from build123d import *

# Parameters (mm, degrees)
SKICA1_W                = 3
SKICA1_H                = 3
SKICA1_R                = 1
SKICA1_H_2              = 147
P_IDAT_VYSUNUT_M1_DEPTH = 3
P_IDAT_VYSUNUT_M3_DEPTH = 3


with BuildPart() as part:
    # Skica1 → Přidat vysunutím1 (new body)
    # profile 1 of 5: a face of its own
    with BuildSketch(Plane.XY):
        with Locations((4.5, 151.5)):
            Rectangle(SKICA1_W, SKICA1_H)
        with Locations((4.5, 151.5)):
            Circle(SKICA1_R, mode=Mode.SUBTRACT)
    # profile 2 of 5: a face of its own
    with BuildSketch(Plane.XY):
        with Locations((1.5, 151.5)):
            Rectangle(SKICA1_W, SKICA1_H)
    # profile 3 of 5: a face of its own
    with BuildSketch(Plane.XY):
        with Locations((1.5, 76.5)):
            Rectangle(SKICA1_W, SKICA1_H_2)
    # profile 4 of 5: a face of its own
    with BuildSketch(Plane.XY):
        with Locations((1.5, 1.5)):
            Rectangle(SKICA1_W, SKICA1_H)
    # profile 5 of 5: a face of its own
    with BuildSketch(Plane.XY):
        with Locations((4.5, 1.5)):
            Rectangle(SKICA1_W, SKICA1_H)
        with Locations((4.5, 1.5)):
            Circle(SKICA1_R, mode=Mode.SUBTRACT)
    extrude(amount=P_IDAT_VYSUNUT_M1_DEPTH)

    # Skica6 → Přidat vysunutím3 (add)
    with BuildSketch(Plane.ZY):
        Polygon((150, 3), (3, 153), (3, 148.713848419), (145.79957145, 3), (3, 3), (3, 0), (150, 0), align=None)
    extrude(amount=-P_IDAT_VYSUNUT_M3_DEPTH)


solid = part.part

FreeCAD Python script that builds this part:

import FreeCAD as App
import Part
import Sketcher

V = App.Vector


def add_polygon(sketch, points):
    """Adds a closed chain of lines whose ends are joined by coincident constraints."""
    first, n = sketch.GeometryCount, len(points)
    for a, b in zip(points, points[1:] + points[:1]):
        sketch.addGeometry(Part.LineSegment(App.Vector(*a, 0), App.Vector(*b, 0)), False)
    for i in range(n):
        sketch.addConstraint(Sketcher.Constraint("Coincident", first + i, 2, first + (i + 1) % n, 1))

doc = App.newDocument("Part")
body = doc.addObject("PartDesign::Body", "Body")

# Sketch on XY plane
sketch1 = doc.addObject("Sketcher::SketchObject", "Sketch")
body.addObject(sketch1)
sketch1.AttachmentSupport = (doc.XY_Plane, [""])
sketch1.MapMode = "FlatFace"
add_polygon(sketch1, [(3, 150), (6, 150), (6, 153), (0, 153), (0, 0), (6, 0), (6, 3), (3, 3)])  # lines 0-7
sketch1.addGeometry(Part.Circle(V(4.5, 151.5, 0), V(0, 0, 1), 1), False)  # 8
sketch1.addGeometry(Part.Circle(V(4.5, 1.5, 0), V(0, 0, 1), 1), False)  # 9
sketch1.addConstraint(Sketcher.Constraint("Horizontal", 0))
sketch1.addConstraint(Sketcher.Constraint("Vertical", 1))
sketch1.addConstraint(Sketcher.Constraint("Horizontal", 2))
sketch1.addConstraint(Sketcher.Constraint("Vertical", 3))
sketch1.addConstraint(Sketcher.Constraint("Horizontal", 4))
sketch1.addConstraint(Sketcher.Constraint("Vertical", 5))
sketch1.addConstraint(Sketcher.Constraint("Horizontal", 6))
sketch1.addConstraint(Sketcher.Constraint("Vertical", 7))
sketch1.addConstraint(Sketcher.Constraint("Coincident", 3, 2, -1, 1))
sketch1.addConstraint(Sketcher.Constraint("Equal", 8, 9))
sketch1.addConstraint(Sketcher.Constraint("Vertical", 8, 3, 9, 3))
sketch1.addConstraint(Sketcher.Constraint("Vertical", 1, 2, 4, 2))
sketch1.addConstraint(Sketcher.Constraint("Equal", 6, 1))
sketch1.addConstraint(Sketcher.Constraint("Equal", 1, 5))
sketch1.addConstraint(Sketcher.Constraint("Diameter", 8, 2.0))
sketch1.addConstraint(Sketcher.Constraint("DistanceX", 0, 1, 0, 2, 3.0))
sketch1.addConstraint(Sketcher.Constraint("DistanceX", 2, 2, 2, 1, 6.0))
sketch1.addConstraint(Sketcher.Constraint("DistanceY", 3, 2, 3, 1, 153.0))
sketch1.addConstraint(Sketcher.Constraint("DistanceY", 9, 3, 8, 3, 150.0))
sketch1.addConstraint(Sketcher.Constraint("DistanceX", -1, 1, 8, 3, 4.5))
sketch1.addConstraint(Sketcher.Constraint("DistanceY", -1, 1, 8, 3, 151.5))
pad1 = doc.addObject("PartDesign::Pad", "Pad")
body.addObject(pad1)
pad1.Profile = sketch1
pad1.Length = 3

# Sketch on YZ plane
sketch2 = doc.addObject("Sketcher::SketchObject", "Sketch001")
body.addObject(sketch2)
sketch2.AttachmentSupport = (doc.YZ_Plane, [""])
sketch2.MapMode = "FlatFace"
add_polygon(sketch2, [(3, 150), (153, 3), (148.713848, 3), (3, 145.799571), (3, 3), (0, 3), (0, 150)])  # lines 0-6
sketch2.addConstraint(Sketcher.Constraint("Horizontal", 1))
sketch2.addConstraint(Sketcher.Constraint("Vertical", 3))
sketch2.addConstraint(Sketcher.Constraint("Horizontal", 4))
sketch2.addConstraint(Sketcher.Constraint("Vertical", 5))
sketch2.addConstraint(Sketcher.Constraint("Horizontal", 6))
sketch2.addConstraint(Sketcher.Constraint("PointOnObject", 4, 2, -2))
sketch2.addConstraint(Sketcher.Constraint("Parallel", 0, 2))
sketch2.addConstraint(Sketcher.Constraint("Horizontal", 1, 2, 3, 2))
sketch2.addConstraint(Sketcher.Constraint("Vertical", 3, 2, 6, 2))
sketch2.addConstraint(Sketcher.Constraint("DistanceX", 4, 2, 4, 1, 3.0))
sketch2.addConstraint(Sketcher.Constraint("DistanceY", 5, 1, 5, 2, 147.0))
sketch2.addConstraint(Sketcher.Constraint("DistanceX", -1, 1, 0, 2, 153.0))
sketch2.addConstraint(Sketcher.Constraint("DistanceY", -1, 1, 0, 2, 3.0))
sketch2.addConstraint(Sketcher.Constraint("DistanceX", 1, 2, 1, 1, 4.286152))
pad2 = doc.addObject("PartDesign::Pad", "Pad001")
body.addObject(pad2)
pad2.Profile = sketch2
pad2.Length = 3

doc.recompute()
